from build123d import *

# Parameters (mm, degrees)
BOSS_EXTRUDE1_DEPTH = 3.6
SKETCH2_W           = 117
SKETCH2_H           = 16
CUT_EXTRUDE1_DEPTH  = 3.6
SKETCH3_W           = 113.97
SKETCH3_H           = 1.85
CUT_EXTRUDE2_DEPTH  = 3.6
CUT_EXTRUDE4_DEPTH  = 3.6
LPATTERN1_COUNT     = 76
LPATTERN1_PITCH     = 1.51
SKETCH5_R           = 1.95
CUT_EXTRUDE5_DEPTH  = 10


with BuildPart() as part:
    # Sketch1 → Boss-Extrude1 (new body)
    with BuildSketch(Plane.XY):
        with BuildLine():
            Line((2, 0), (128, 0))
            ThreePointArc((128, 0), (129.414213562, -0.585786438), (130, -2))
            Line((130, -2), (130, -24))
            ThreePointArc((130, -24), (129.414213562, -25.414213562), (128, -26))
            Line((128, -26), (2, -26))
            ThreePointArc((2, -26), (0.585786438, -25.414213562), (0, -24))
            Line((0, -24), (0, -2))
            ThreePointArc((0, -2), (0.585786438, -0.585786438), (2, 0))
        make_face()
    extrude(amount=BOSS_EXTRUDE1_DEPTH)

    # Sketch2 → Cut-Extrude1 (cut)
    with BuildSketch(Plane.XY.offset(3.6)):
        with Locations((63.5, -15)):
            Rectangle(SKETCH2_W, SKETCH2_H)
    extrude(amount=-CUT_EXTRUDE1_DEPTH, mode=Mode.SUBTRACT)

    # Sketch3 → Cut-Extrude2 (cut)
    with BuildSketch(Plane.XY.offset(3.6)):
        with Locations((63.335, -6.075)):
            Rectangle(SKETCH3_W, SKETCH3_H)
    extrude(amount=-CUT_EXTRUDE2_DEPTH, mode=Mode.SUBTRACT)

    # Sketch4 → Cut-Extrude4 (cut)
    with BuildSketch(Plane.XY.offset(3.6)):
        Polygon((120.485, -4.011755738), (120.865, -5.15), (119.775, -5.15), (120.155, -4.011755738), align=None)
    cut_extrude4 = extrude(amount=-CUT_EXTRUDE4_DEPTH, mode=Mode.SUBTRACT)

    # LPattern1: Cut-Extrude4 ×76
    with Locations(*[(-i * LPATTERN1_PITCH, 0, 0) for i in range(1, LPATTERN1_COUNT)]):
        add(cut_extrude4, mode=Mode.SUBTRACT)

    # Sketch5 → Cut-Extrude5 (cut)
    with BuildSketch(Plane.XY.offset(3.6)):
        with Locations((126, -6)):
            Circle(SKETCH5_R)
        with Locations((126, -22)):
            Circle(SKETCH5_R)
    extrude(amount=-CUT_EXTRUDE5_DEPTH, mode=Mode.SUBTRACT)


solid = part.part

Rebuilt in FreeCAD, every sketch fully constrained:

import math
import FreeCAD as App
import Part
import Sketcher
from FreeCAD import Vector
Q = App.Units.Quantity

doc = App.newDocument("Part")
body = doc.addObject("PartDesign::Body", "Body")

# Sketch on XY plane
sketch1 = body.newObject("Sketcher::SketchObject", "Sketch")
sketch1.AttachmentSupport = (doc.getObject("XY_Plane"), [""])
sketch1.MapMode = "FlatFace"
sketch1.addGeometry([
    Part.LineSegment(Vector(128, 0, 0), Vector(2, 0, 0)),  # 0
    Part.ArcOfCircle(Part.Circle(Vector(2, -2, 0), Vector(0, 0, 1), 2), math.radians(90), math.radians(180)),  # 1
    Part.LineSegment(Vector(0, -2, 0), Vector(0, -24, 0)),  # 2
    Part.ArcOfCircle(Part.Circle(Vector(2, -24, 0), Vector(0, 0, 1), 2), math.radians(-180), math.radians(-90)),  # 3
    Part.LineSegment(Vector(2, -26, 0), Vector(128, -26, 0)),  # 4
    Part.ArcOfCircle(Part.Circle(Vector(128, -24, 0), Vector(0, 0, 1), 2), math.radians(-90), math.radians(0)),  # 5
    Part.LineSegment(Vector(130, -24, 0), Vector(130, -2, 0)),  # 6
    Part.ArcOfCircle(Part.Circle(Vector(128, -2, 0), Vector(0, 0, 1), 2), math.radians(0), math.radians(90)),  # 7
], False)
sketch1.addConstraint([
    Sketcher.Constraint("Tangent", 0, 2, 1, 1),
    Sketcher.Constraint("Tangent", 1, 2, 2, 1),
    Sketcher.Constraint("Tangent", 2, 2, 3, 1),
    Sketcher.Constraint("Tangent", 3, 2, 4, 1),
    Sketcher.Constraint("Tangent", 4, 2, 5, 1),
    Sketcher.Constraint("Tangent", 5, 2, 6, 1),
    Sketcher.Constraint("Tangent", 6, 2, 7, 1),
    Sketcher.Constraint("Tangent", 7, 2, 0, 1),
    Sketcher.Constraint("Horizontal", 0),
    Sketcher.Constraint("Vertical", 2),
    Sketcher.Constraint("Horizontal", 4),
    Sketcher.Constraint("Vertical", 6),
    Sketcher.Constraint("Equal", 1, 3),
    Sketcher.Constraint("Equal", 3, 5),
    Sketcher.Constraint("Equal", 5, 7),
    Sketcher.Constraint("PointOnObject", 0, 2, -1),
    Sketcher.Constraint("PointOnObject", 1, 2, -2),
    Sketcher.Constraint("Radius", 1, Q("2 mm")),
    Sketcher.Constraint("DistanceX", 0, 2, 0, 1, Q("126 mm")),
    Sketcher.Constraint("DistanceY", 2, 2, 2, 1, Q("22 mm")),
])
pad1 = body.newObject("PartDesign::Pad", "Pad")
pad1.Profile = sketch1
pad1.Length = 3.6

# Sketch on XY plane
sketch2 = body.newObject("Sketcher::SketchObject", "Sketch001")
sketch2.AttachmentSupport = (doc.getObject("XY_Plane"), [""])
sketch2.MapMode = "FlatFace"
sketch2.AttachmentOffset = App.Placement(Vector(0, 0, 3.6), App.Rotation())
sketch2.addGeometry([
    Part.LineSegment(Vector(5, -7, 0), Vector(5, -23, 0)),
    Part.LineSegment(Vector(5, -23, 0), Vector(122, -23, 0)),
    Part.LineSegment(Vector(122, -23, 0), Vector(122, -7, 0)),
    Part.LineSegment(Vector(122, -7, 0), Vector(5, -7, 0)),
], False)
sketch2.addConstraint([
    Sketcher.Constraint("Coincident", 0, 2, 1, 1),
    Sketcher.Constraint("Coincident", 1, 2, 2, 1),
    Sketcher.Constraint("Coincident", 2, 2, 3, 1),
    Sketcher.Constraint("Coincident", 3, 2, 0, 1),
    Sketcher.Constraint("Vertical", 0),
    Sketcher.Constraint("Horizontal", 1),
    Sketcher.Constraint("Vertical", 2),
    Sketcher.Constraint("Horizontal", 3),
    Sketcher.Constraint("DistanceX", 1, 1, 1, 2, Q("117 mm")),
    Sketcher.Constraint("DistanceY", 0, 2, 0, 1, Q("16 mm")),
    Sketcher.Constraint("DistanceX", -1, 1, 0, 2, Q("5 mm")),
    Sketcher.Constraint("DistanceY", 0, 2, -1, 1, Q("23 mm")),
])
pocket1 = body.newObject("PartDesign::Pocket", "Pocket")
pocket1.Profile = sketch2
pocket1.Length = 3.6

# Sketch on XY plane
sketch3 = body.newObject("Sketcher::SketchObject", "Sketch002")
sketch3.AttachmentSupport = (doc.getObject("XY_Plane"), [""])
sketch3.MapMode = "FlatFace"
sketch3.AttachmentOffset = App.Placement(Vector(0, 0, 3.6), App.Rotation())
sketch3.addGeometry([
    Part.LineSegment(Vector(6.3, -5.2, 0), Vector(6.3, -7, 0)),
    Part.LineSegment(Vector(6.3, -7, 0), Vector(120.3, -7, 0)),
    Part.LineSegment(Vector(120.3, -7, 0), Vector(120.3, -5.2, 0)),
    Part.LineSegment(Vector(120.3, -5.2, 0), Vector(6.3, -5.2, 0)),
], False)
sketch3.addConstraint([
    Sketcher.Constraint("Coincident", 0, 2, 1, 1),
    Sketcher.Constraint("Coincident", 1, 2, 2, 1),
    Sketcher.Constraint("Coincident", 2, 2, 3, 1),
    Sketcher.Constraint("Coincident", 3, 2, 0, 1),
    Sketcher.Constraint("Vertical", 0),
    Sketcher.Constraint("Horizontal", 1),
    Sketcher.Constraint("Vertical", 2),
    Sketcher.Constraint("Horizontal", 3),
    Sketcher.Constraint("DistanceY", 0, 2, -1, 1, Q("7 mm")),
    Sketcher.Constraint("DistanceX", 1, 1, 1, 2, Q("113.97 mm")),
    Sketcher.Constraint("DistanceY", 0, 2, 0, 1, Q("1.85 mm")),
    Sketcher.Constraint("DistanceX", -1, 1, 0, 2, Q("6.35 mm")),
])
pocket2 = body.newObject("PartDesign::Pocket", "Pocket001")
pocket2.Profile = sketch3
pocket2.Length = 3.6

# Sketch on XY plane
sketch4 = body.newObject("Sketcher::SketchObject", "Sketch003")
sketch4.AttachmentSupport = (doc.getObject("XY_Plane"), [""])
sketch4.MapMode = "FlatFace"
sketch4.AttachmentOffset = App.Placement(Vector(0, 0, 3.6), App.Rotation())
sketch4.addGeometry([
    Part.LineSegment(Vector(120.86, -5.15, 0), Vector(120.48, -4.01, 0)),
    Part.LineSegment(Vector(120.48, -4.01, 0), Vector(120.16, -4.01, 0)),
    Part.LineSegment(Vector(120.16, -4.01, 0), Vector(119.78, -5.15, 0)),
    Part.LineSegment(Vector(119.78, -5.15, 0), Vector(120.86, -5.15, 0)),
], False)
sketch4.addConstraint([
    Sketcher.Constraint("Coincident", 0, 2, 1, 1),
    Sketcher.Constraint("Coincident", 1, 2, 2, 1),
    Sketcher.Constraint("Coincident", 2, 2, 3, 1),
    Sketcher.Constraint("Coincident", 3, 2, 0, 1),
    Sketcher.Constraint("Horizontal", 1),
    Sketcher.Constraint("Horizontal", 3),
    Sketcher.Constraint("Equal", 0, 2),
    Sketcher.Constraint("Distance", 0, Q("1.2 mm")),
    Sketcher.Constraint("DistanceX", 1, 2, 1, 1, Q("0.33 mm")),
    Sketcher.Constraint("DistanceX", 3, 1, 3, 2, Q("1.09 mm")),
    Sketcher.Constraint("DistanceY", 2, 2, -1, 1, Q("5.15 mm")),
    Sketcher.Constraint("DistanceX", -1, 1, 0, 2, Q("120.485 mm")),
])
pocket3 = body.newObject("PartDesign::Pocket", "Pocket002")
pocket3.Profile = sketch4
pocket3.Length = 3.6
doc.recompute()

linearpattern = body.newObject("PartDesign::LinearPattern", "LinearPattern")
linearpattern.Originals = [pocket3]
linearpattern.Direction = (doc.getObject("X_Axis"), [""])
linearpattern.Mode = "offset"
linearpattern.Offset = 1.51
linearpattern.Occurrences = 76
linearpattern.Reversed = True
body.Tip = linearpattern

# Sketch on XY plane
sketch5 = body.newObject("Sketcher::SketchObject", "Sketch004")
sketch5.AttachmentSupport = (doc.getObject("XY_Plane"), [""])
sketch5.MapMode = "FlatFace"
sketch5.AttachmentOffset = App.Placement(Vector(0, 0, 3.6), App.Rotation())
sketch5.addGeometry([
    Part.Circle(Vector(126, -6, 0), Vector(0, 0, 1), 1.9),
    Part.Circle(Vector(126, -22, 0), Vector(0, 0, 1), 1.9),
], False)
sketch5.addConstraint([
    Sketcher.Constraint("Equal", 0, 1),
    Sketcher.Constraint("Vertical", 0, 3, 1, 3),
    Sketcher.Constraint("Diameter", 0, Q("3.9 mm")),
    Sketcher.Constraint("DistanceX", -1, 1, 0, 3, Q("126 mm")),
    Sketcher.Constraint("DistanceY", 0, 3, -1, 1, Q("6 mm")),
    Sketcher.Constraint("DistanceY", 1, 3, -1, 1, Q("22 mm")),
])
pocket4 = body.newObject("PartDesign::Pocket", "Pocket003")
pocket4.Profile = sketch5
pocket4.Length = 10

doc.recompute()
